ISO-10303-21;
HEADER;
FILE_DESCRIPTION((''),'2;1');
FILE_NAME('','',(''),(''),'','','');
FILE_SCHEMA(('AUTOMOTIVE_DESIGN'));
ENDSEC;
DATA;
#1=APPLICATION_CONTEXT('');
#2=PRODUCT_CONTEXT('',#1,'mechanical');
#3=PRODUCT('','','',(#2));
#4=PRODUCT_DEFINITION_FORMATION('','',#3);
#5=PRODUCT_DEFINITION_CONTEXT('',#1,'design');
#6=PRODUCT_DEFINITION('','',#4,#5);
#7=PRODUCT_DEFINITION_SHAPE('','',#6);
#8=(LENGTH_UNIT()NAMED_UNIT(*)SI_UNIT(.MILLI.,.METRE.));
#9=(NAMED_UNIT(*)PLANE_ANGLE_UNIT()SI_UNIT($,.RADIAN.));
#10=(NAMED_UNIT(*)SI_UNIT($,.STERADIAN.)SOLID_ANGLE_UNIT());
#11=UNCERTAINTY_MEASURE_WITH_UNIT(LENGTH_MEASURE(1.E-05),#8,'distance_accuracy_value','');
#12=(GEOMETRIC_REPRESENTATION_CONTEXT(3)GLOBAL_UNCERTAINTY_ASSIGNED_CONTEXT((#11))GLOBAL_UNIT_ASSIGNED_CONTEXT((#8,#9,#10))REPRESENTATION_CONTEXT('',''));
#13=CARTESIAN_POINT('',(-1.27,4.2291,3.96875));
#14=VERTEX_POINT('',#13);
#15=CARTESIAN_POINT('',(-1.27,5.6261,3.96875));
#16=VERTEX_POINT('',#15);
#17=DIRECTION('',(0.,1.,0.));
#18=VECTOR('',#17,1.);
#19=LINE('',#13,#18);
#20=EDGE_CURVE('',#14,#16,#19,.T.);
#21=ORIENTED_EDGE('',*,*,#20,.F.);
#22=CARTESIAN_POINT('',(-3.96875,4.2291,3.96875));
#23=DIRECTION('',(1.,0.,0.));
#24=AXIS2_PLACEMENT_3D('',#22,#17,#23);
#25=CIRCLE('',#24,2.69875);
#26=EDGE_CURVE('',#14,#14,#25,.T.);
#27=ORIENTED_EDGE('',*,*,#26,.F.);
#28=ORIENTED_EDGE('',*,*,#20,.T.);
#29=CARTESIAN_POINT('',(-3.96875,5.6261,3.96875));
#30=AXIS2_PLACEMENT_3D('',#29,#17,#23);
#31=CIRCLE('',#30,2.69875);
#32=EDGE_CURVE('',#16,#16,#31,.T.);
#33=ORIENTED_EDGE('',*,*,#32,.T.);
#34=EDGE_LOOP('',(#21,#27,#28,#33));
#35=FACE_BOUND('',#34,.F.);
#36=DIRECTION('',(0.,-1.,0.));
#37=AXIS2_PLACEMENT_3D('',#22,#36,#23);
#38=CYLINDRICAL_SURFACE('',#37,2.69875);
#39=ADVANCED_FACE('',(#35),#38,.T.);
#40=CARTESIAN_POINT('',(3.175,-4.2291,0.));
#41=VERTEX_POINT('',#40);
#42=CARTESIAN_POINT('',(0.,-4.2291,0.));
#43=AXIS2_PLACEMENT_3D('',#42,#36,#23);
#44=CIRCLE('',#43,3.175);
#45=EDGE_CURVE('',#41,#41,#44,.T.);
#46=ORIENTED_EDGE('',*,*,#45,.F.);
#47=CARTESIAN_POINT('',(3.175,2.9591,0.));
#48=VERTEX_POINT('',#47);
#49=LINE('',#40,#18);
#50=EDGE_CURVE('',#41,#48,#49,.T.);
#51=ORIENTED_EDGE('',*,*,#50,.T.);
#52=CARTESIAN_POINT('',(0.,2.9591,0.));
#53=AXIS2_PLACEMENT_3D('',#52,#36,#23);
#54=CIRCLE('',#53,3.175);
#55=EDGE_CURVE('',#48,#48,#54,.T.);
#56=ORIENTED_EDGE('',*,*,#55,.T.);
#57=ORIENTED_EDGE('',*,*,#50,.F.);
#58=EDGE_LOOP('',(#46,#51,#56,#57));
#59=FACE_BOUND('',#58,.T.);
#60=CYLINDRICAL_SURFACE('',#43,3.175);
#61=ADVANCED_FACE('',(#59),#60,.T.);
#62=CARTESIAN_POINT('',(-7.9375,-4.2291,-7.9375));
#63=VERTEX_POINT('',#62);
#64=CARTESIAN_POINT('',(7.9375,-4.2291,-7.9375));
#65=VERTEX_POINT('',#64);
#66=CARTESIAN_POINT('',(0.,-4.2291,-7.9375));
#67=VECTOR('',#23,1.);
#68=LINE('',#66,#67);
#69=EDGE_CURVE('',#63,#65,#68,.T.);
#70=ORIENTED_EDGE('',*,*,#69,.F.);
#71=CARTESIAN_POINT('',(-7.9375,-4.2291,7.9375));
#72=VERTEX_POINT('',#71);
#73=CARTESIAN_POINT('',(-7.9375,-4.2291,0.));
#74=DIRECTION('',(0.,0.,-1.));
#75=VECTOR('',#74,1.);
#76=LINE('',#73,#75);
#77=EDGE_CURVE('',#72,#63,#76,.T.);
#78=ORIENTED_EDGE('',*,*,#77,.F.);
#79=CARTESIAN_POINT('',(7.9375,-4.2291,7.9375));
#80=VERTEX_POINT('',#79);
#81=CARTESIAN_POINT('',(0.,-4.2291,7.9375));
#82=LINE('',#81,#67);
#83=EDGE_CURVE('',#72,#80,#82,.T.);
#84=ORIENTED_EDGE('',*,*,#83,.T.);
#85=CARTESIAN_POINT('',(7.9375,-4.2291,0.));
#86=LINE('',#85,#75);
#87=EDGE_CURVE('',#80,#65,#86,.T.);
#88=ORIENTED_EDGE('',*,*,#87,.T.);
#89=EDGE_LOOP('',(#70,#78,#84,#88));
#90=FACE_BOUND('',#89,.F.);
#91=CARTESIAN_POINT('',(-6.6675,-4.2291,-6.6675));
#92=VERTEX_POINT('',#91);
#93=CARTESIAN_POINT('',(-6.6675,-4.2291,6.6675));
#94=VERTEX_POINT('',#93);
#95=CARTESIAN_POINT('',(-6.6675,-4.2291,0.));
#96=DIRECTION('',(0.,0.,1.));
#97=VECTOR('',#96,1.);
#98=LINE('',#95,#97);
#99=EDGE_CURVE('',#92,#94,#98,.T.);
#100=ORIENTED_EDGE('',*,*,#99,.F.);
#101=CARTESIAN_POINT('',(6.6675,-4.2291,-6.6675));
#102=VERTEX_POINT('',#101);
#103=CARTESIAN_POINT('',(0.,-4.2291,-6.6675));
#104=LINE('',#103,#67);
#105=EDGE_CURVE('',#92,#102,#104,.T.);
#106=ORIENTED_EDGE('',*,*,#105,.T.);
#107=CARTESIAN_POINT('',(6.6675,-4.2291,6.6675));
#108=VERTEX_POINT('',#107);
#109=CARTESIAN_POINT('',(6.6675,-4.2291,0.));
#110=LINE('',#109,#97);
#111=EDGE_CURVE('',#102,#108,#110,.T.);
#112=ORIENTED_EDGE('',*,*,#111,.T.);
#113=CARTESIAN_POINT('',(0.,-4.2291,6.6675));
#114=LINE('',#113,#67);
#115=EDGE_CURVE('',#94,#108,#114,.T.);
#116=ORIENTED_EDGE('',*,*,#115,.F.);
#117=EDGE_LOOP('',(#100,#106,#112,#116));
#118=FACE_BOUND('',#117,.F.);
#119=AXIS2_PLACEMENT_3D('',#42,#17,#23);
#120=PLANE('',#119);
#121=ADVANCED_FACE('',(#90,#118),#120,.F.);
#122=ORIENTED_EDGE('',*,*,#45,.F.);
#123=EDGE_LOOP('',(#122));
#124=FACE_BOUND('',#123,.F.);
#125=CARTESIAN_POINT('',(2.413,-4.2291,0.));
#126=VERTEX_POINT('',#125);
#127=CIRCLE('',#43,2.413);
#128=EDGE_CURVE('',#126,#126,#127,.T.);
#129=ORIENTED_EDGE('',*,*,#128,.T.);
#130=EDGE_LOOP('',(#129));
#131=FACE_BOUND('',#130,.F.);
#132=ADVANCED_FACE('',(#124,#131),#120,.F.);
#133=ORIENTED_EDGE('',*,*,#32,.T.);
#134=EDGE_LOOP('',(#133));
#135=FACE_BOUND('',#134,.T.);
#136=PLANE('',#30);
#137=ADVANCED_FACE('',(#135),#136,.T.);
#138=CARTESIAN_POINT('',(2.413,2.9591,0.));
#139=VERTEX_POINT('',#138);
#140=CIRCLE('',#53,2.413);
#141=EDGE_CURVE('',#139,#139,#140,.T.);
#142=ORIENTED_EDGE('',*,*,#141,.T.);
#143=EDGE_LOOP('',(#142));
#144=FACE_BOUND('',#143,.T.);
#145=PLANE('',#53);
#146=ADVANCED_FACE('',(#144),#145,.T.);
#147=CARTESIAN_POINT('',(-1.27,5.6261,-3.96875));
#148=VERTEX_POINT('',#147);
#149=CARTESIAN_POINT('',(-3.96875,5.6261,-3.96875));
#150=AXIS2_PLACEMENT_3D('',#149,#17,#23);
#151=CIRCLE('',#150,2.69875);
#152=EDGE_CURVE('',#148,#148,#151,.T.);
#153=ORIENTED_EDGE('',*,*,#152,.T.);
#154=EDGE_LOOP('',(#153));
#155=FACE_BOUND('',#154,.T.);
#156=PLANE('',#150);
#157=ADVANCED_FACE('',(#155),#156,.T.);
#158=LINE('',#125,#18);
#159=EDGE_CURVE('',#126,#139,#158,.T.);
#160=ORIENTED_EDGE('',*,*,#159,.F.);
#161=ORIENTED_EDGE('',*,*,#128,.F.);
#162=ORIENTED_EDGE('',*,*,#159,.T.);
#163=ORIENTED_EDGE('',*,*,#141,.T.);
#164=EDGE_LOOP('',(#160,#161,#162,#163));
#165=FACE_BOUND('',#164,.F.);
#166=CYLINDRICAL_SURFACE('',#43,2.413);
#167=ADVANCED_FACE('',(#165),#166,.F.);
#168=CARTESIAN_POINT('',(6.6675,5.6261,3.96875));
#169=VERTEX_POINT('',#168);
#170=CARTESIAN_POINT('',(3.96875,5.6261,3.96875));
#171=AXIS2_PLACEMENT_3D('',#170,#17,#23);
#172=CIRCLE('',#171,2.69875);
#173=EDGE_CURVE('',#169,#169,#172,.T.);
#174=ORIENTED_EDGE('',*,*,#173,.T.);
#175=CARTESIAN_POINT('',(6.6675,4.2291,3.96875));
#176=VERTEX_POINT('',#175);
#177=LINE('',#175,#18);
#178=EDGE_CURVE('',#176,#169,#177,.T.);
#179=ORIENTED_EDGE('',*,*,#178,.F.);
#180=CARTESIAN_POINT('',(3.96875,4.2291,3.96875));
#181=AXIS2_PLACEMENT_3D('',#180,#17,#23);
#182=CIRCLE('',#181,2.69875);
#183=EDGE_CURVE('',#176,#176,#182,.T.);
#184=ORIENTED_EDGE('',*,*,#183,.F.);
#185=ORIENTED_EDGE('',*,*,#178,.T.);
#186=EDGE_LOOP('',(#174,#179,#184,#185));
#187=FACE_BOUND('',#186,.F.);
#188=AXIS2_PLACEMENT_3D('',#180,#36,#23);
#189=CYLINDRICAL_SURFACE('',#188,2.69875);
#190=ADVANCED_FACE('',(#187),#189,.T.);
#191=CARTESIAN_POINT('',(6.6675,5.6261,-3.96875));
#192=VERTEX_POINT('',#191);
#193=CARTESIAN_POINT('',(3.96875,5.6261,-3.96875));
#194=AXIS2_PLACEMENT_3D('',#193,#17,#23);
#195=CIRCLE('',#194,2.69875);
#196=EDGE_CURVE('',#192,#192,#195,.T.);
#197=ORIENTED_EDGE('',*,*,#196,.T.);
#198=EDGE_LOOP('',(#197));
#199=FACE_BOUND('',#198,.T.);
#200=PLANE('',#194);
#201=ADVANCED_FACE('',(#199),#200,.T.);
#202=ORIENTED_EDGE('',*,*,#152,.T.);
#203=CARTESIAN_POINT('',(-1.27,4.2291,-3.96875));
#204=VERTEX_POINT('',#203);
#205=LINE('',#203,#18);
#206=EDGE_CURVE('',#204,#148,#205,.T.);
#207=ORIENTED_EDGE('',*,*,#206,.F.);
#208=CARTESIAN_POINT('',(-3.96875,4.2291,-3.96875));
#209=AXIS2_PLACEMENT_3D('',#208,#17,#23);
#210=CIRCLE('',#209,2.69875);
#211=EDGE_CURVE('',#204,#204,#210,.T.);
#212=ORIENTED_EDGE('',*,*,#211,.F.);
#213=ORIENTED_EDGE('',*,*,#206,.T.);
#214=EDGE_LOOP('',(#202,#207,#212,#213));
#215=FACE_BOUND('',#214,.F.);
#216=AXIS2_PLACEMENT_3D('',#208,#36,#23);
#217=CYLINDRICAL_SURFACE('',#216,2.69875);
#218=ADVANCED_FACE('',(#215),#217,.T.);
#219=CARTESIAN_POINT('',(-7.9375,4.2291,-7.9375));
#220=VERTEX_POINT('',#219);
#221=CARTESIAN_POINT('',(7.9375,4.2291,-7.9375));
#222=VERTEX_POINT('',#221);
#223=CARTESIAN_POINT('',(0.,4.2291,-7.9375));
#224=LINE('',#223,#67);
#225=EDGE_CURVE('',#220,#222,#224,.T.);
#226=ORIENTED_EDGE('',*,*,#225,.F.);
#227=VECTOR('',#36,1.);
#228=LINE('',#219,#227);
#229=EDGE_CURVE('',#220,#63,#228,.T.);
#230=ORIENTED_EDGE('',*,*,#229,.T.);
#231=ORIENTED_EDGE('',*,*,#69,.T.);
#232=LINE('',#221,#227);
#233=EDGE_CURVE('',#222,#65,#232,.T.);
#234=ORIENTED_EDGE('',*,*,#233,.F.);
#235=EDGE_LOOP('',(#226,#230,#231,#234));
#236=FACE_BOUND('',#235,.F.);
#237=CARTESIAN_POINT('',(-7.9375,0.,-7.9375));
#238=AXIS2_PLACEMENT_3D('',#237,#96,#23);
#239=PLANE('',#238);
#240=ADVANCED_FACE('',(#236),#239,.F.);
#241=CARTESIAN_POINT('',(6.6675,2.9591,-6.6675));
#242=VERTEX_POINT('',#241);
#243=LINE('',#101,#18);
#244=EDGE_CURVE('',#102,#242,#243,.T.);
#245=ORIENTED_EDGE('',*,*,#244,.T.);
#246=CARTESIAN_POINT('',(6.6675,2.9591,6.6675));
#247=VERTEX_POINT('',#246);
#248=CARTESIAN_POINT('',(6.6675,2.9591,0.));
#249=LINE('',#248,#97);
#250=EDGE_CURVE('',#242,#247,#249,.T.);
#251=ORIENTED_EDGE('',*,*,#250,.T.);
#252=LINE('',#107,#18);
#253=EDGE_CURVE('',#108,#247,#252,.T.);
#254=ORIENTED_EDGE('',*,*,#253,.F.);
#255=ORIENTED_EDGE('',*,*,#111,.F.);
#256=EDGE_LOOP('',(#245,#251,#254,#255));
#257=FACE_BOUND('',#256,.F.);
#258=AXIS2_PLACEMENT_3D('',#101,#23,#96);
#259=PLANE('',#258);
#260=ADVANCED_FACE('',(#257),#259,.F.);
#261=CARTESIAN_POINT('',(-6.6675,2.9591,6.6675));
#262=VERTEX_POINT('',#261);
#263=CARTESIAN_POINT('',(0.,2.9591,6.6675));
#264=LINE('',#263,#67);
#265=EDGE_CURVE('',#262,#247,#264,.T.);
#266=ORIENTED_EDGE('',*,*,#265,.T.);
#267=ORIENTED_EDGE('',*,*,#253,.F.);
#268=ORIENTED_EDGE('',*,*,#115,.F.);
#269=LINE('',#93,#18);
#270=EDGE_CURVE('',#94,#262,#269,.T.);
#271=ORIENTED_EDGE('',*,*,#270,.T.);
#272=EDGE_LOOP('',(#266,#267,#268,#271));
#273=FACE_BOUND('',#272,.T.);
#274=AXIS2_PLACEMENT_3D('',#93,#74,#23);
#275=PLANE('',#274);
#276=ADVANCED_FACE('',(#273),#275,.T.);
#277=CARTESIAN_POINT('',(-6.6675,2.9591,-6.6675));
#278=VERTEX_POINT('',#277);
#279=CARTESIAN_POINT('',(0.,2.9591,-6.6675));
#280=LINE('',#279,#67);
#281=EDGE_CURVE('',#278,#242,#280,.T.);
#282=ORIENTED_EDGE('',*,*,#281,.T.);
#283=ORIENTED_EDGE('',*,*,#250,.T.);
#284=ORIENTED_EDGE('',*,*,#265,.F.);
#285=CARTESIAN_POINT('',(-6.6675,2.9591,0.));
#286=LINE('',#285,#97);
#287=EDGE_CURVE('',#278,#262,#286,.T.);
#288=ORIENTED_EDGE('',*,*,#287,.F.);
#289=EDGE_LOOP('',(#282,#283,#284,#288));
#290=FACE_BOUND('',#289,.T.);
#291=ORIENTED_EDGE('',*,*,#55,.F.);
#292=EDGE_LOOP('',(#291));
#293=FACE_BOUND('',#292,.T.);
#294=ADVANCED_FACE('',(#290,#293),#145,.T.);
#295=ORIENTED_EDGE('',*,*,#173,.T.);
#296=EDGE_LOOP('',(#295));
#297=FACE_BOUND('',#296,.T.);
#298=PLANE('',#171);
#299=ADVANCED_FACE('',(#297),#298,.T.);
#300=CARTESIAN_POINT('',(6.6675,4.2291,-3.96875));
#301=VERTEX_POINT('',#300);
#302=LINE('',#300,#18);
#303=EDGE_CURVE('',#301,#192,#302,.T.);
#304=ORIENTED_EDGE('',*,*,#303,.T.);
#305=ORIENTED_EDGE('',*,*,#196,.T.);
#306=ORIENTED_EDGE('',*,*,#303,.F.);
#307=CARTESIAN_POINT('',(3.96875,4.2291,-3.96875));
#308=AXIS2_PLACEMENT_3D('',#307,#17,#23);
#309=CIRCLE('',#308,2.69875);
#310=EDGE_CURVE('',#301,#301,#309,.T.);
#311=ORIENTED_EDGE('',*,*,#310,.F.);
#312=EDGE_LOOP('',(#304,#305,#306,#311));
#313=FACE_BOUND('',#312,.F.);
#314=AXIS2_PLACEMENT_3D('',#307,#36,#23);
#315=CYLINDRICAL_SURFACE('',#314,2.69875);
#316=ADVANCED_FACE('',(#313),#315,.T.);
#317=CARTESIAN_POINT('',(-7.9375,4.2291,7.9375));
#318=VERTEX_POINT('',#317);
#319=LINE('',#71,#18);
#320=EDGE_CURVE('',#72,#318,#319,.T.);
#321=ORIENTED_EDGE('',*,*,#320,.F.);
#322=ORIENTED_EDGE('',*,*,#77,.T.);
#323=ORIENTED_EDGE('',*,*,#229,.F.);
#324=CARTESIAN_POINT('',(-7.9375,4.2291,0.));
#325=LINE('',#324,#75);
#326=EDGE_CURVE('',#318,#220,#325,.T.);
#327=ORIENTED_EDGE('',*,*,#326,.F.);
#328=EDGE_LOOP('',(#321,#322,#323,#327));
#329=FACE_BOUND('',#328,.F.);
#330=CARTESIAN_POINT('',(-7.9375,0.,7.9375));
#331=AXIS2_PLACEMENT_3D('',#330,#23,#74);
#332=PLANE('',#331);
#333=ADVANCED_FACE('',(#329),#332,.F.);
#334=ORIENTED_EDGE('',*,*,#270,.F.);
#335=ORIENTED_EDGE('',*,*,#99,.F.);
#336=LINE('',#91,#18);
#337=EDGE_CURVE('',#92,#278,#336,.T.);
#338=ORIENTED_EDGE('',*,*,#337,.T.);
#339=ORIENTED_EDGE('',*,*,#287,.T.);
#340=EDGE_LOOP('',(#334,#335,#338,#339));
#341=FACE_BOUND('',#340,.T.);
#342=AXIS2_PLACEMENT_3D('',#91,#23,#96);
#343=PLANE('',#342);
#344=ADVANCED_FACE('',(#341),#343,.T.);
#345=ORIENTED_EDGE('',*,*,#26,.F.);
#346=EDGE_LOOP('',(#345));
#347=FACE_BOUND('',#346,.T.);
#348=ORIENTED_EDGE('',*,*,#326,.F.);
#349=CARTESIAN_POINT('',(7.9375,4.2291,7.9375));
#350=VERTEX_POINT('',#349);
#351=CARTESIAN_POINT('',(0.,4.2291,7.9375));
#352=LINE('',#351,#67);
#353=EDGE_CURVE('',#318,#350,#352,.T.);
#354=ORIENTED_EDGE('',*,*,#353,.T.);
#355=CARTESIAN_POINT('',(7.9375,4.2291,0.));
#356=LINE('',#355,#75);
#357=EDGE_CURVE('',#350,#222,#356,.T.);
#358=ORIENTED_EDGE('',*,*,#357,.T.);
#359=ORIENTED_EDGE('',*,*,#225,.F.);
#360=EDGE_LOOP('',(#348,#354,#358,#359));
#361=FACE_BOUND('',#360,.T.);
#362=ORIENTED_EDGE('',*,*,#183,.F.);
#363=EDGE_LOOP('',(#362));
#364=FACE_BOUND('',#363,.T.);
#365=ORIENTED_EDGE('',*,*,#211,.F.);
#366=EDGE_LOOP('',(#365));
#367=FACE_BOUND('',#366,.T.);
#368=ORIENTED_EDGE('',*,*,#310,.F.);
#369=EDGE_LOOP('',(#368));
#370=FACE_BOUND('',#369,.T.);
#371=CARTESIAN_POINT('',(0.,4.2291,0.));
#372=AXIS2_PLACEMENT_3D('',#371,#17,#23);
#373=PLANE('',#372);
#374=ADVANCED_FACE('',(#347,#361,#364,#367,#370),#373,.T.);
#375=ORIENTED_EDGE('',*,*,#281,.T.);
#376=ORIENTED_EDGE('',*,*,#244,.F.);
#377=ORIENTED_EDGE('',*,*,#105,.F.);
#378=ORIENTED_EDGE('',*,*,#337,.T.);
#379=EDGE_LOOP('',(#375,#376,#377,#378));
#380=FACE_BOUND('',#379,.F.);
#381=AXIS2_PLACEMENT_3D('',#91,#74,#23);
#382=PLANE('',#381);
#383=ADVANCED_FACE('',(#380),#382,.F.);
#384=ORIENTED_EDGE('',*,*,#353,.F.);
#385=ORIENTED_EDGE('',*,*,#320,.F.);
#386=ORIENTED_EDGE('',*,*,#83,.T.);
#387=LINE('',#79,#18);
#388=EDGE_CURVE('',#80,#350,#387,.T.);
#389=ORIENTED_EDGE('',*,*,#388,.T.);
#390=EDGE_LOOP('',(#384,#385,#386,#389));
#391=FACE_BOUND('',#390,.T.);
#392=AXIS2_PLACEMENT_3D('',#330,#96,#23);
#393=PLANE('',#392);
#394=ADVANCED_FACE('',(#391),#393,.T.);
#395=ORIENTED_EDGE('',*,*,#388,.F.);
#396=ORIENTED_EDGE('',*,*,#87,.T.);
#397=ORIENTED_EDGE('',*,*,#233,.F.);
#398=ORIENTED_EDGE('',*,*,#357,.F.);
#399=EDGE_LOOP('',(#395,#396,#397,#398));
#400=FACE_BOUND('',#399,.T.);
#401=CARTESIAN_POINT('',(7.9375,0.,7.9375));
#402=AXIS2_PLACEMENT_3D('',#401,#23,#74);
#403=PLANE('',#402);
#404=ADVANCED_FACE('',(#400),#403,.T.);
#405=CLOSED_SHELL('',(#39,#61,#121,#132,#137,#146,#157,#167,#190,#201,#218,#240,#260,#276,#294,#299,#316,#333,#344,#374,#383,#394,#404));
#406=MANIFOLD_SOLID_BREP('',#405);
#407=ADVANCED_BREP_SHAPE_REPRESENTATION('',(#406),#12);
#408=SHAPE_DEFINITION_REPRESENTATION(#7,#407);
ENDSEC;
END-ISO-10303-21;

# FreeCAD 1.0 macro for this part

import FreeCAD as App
import Part
import Sketcher
Q = App.Units.Quantity

doc = App.newDocument("Part")
body = doc.addObject("PartDesign::Body", "Body")

sketch1 = body.newObject("Sketcher::SketchObject", "Sketch")
sketch1.AttachmentSupport = (doc.getObject("XZ_Plane"), [""])
sketch1.MapMode = "FlatFace"
sketch1.addGeometry([
    Part.LineSegment(App.Vector(-8, -8, 0), App.Vector(-8, 8, 0)),
    Part.LineSegment(App.Vector(-8, 8, 0), App.Vector(8, 8, 0)),
    Part.LineSegment(App.Vector(8, 8, 0), App.Vector(8, -8, 0)),
    Part.LineSegment(App.Vector(8, -8, 0), App.Vector(-8, -8, 0)),
], False)
sketch1.addConstraint([
    Sketcher.Constraint("Coincident", 0, 2, 1, 1),
    Sketcher.Constraint("Coincident", 1, 2, 2, 1),
    Sketcher.Constraint("Coincident", 2, 2, 3, 1),
    Sketcher.Constraint("Coincident", 3, 2, 0, 1),
    Sketcher.Constraint("Vertical", 0),
    Sketcher.Constraint("Horizontal", 1),
    Sketcher.Constraint("Vertical", 2),
    Sketcher.Constraint("Horizontal", 3),
    Sketcher.Constraint("Symmetric", 0, 2, 2, 2, -1, 1),
    Sketcher.Constraint("Equal", 3, 0),
    Sketcher.Constraint("DistanceX", 1, 1, 1, 2, Q("0.625 in")),
])
pad1 = body.newObject("PartDesign::Pad", "Pad")
pad1.Profile = sketch1
pad1.Length = Q("0.333 in")
pad1.Midplane = True

sketch2 = body.newObject("Sketcher::SketchObject", "Sketch001")
sketch2.AttachmentSupport = (doc.getObject("XZ_Plane"), [""])
sketch2.MapMode = "FlatFace"
sketch2.AttachmentOffset = App.Placement(App.Vector(0, 0, 0.1665 * 25.4), App.Rotation())
sketch2.addGeometry([
    Part.LineSegment(App.Vector(-6.7, 6.7, 0), App.Vector(-6.7, -6.7, 0)),
    Part.LineSegment(App.Vector(-6.7, -6.7, 0), App.Vector(6.7, -6.7, 0)),
    Part.LineSegment(App.Vector(6.7, -6.7, 0), App.Vector(6.7, 6.7, 0)),
    Part.LineSegment(App.Vector(6.7, 6.7, 0), App.Vector(-6.7, 6.7, 0)),
    Part.Circle(App.Vector(0, 0, 0), App.Vector(0, 0, 1), 3.2),
    Part.Circle(App.Vector(0, 0, 0), App.Vector(0, 0, 1), 2.4),
], False)
sketch2.addConstraint([
    Sketcher.Constraint("Coincident", 0, 2, 1, 1),
    Sketcher.Constraint("Coincident", 1, 2, 2, 1),
    Sketcher.Constraint("Coincident", 2, 2, 3, 1),
    Sketcher.Constraint("Coincident", 3, 2, 0, 1),
    Sketcher.Constraint("Vertical", 0),
    Sketcher.Constraint("Horizontal", 1),
    Sketcher.Constraint("Vertical", 2),
    Sketcher.Constraint("Horizontal", 3),
    Sketcher.Constraint("Coincident", 4, 3, -1, 1),
    Sketcher.Constraint("Coincident", 5, 3, -1, 1),
    Sketcher.Constraint("Symmetric", 0, 2, 2, 2, -1, 1),
    Sketcher.Constraint("Equal", 3, 0),
    Sketcher.Constraint("Diameter", 4, Q("0.25 in")),
    Sketcher.Constraint("Diameter", 5, Q("0.19 in")),
    Sketcher.Constraint("DistanceX", 1, 1, 1, 2, Q("0.525 in")),
])
pocket1 = body.newObject("PartDesign::Pocket", "Pocket")
pocket1.Profile = sketch2
pocket1.Length = Q("0.283 in")

sketch3 = body.newObject("Sketcher::SketchObject", "Sketch002")
sketch3.AttachmentSupport = (doc.getObject("XZ_Plane"), [""])
sketch3.MapMode = "FlatFace"
sketch3.AttachmentOffset = App.Placement(App.Vector(0, 0, -0.1665 * 25.4), App.Rotation())
sketch3.addGeometry([
    Part.Circle(App.Vector(4, 4, 0), App.Vector(0, 0, 1), 2.7),
    Part.Circle(App.Vector(4, -4, 0), App.Vector(0, 0, 1), 2.7),
    Part.Circle(App.Vector(-4, 4, 0), App.Vector(0, 0, 1), 2.7),
    Part.Circle(App.Vector(-4, -4, 0), App.Vector(0, 0, 1), 2.7),
], False)
sketch3.addConstraint([
    Sketcher.Constraint("Equal", 0, 1),
    Sketcher.Constraint("Equal", 1, 2),
    Sketcher.Constraint("Equal", 2, 3),
    Sketcher.Constraint("Symmetric", 1, 3, 2, 3, -1, 1),
    Sketcher.Constraint("Symmetric", 0, 3, 3, 3, -1, 1),
    Sketcher.Constraint("Symmetric", 0, 3, 2, 3, -2),
    Sketcher.Constraint("Diameter", 0, Q("0.2125 in")),
    Sketcher.Constraint("DistanceX", -1, 1, 0, 3, Q("0.15625 in")),
    Sketcher.Constraint("DistanceY", -1, 1, 0, 3, Q("0.15625 in")),
])
pad2 = body.newObject("PartDesign::Pad", "Pad001")
pad2.Profile = sketch3
pad2.Length = Q("0.055 in")
pad2.Reversed = True

doc.recompute()
